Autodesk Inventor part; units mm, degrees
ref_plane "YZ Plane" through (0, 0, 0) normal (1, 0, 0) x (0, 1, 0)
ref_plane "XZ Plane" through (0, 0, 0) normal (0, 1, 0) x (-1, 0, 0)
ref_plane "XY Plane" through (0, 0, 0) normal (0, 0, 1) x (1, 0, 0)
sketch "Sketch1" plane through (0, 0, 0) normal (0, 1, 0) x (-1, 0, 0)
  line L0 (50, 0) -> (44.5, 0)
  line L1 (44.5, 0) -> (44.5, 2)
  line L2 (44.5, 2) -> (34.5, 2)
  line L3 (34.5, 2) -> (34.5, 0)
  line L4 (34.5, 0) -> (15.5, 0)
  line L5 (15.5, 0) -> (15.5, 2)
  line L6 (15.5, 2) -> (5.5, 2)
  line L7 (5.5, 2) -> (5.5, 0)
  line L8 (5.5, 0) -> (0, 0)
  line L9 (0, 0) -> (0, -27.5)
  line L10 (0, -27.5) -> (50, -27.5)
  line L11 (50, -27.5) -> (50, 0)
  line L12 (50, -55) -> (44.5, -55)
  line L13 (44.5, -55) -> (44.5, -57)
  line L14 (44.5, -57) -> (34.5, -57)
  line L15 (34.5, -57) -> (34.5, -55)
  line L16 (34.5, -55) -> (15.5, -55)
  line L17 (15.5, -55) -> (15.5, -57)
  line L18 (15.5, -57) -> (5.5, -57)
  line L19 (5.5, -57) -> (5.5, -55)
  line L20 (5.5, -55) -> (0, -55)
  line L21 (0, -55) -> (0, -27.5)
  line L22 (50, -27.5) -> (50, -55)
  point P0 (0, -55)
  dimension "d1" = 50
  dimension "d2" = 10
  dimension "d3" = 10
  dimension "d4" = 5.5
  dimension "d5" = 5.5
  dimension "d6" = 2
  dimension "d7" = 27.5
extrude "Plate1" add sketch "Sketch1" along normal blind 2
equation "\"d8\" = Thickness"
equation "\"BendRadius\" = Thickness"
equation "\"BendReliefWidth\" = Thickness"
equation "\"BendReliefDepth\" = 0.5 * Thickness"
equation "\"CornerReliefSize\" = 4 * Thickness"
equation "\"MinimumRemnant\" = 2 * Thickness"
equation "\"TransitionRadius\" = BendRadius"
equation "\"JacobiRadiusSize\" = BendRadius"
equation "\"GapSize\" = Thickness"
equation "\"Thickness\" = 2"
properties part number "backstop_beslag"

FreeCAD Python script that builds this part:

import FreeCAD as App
import Part
import Sketcher

V = App.Vector
Q = App.Units.Quantity


def add_polygon(sketch, points):
    """Adds a closed chain of lines whose ends are joined by coincident constraints."""
    first, n = sketch.GeometryCount, len(points)
    for a, b in zip(points, points[1:] + points[:1]):
        sketch.addGeometry(Part.LineSegment(App.Vector(*a, 0), App.Vector(*b, 0)), False)
    for i in range(n):
        sketch.addConstraint(Sketcher.Constraint("Coincident", first + i, 2, first + (i + 1) % n, 1))

doc = App.newDocument("Part")
body = doc.addObject("PartDesign::Body", "Body")

sketch1 = body.newObject("Sketcher::SketchObject", "Sketch")
sketch1.AttachmentSupport = (doc.getObject("XZ_Plane"), [""])
sketch1.MapMode = "FlatFace"
add_polygon(sketch1, [(-50, 0), (-44.5, 0), (-44.5, 2), (-34.5, 2), (-34.5, 0), (-15.5, 0), (-15.5, 2), (-5.5, 2), (-5.5, 0), (0, 0), (0, -55), (-5.5, -55), (-5.5, -57), (-15.5, -57), (-15.5, -55), (-34.5, -55), (-34.5, -57), (-44.5, -57), (-44.5, -55), (-50, -55)])
sketch1.addConstraint(Sketcher.Constraint("Horizontal", 0))
sketch1.addConstraint(Sketcher.Constraint("Vertical", 1))
sketch1.addConstraint(Sketcher.Constraint("Horizontal", 2))
sketch1.addConstraint(Sketcher.Constraint("Vertical", 3))
sketch1.addConstraint(Sketcher.Constraint("Horizontal", 4))
sketch1.addConstraint(Sketcher.Constraint("Vertical", 5))
sketch1.addConstraint(Sketcher.Constraint("Horizontal", 6))
sketch1.addConstraint(Sketcher.Constraint("Vertical", 7))
sketch1.addConstraint(Sketcher.Constraint("Horizontal", 8))
sketch1.addConstraint(Sketcher.Constraint("Vertical", 9))
sketch1.addConstraint(Sketcher.Constraint("Horizontal", 10))
sketch1.addConstraint(Sketcher.Constraint("Vertical", 11))
sketch1.addConstraint(Sketcher.Constraint("Horizontal", 12))
sketch1.addConstraint(Sketcher.Constraint("Vertical", 13))
sketch1.addConstraint(Sketcher.Constraint("Horizontal", 14))
sketch1.addConstraint(Sketcher.Constraint("Vertical", 15))
sketch1.addConstraint(Sketcher.Constraint("Horizontal", 16))
sketch1.addConstraint(Sketcher.Constraint("Vertical", 17))
sketch1.addConstraint(Sketcher.Constraint("Horizontal", 18))
sketch1.addConstraint(Sketcher.Constraint("Vertical", 19))
sketch1.addConstraint(Sketcher.Constraint("Coincident", 8, 2, -1, 1))
sketch1.addConstraint(Sketcher.Constraint("PointOnObject", 0, 2, -1))
sketch1.addConstraint(Sketcher.Constraint("PointOnObject", 3, 2, -1))
sketch1.addConstraint(Sketcher.Constraint("Horizontal", 2, 2, 5, 2))
sketch1.addConstraint(Sketcher.Constraint("Horizontal", 10, 2, 13, 2))
sketch1.addConstraint(Sketcher.Constraint("Horizontal", 12, 2, 15, 2))
sketch1.addConstraint(Sketcher.Constraint("Horizontal", 14, 2, 17, 2))
sketch1.addConstraint(Sketcher.Constraint("Vertical", 7, 2, 10, 2))
sketch1.addConstraint(Sketcher.Constraint("Vertical", 5, 2, 12, 2))
sketch1.addConstraint(Sketcher.Constraint("Vertical", 3, 2, 14, 2))
sketch1.addConstraint(Sketcher.Constraint("Vertical", 1, 2, 16, 2))
sketch1.addConstraint(Sketcher.Constraint("Equal", 2, 6))
sketch1.addConstraint(Sketcher.Constraint("Equal", 0, 8))
sketch1.addConstraint(Sketcher.Constraint("Equal", 7, 11))
sketch1.addConstraint(Sketcher.Constraint("DistanceX", 2, 1, 2, 2, Q("10 mm")))
sketch1.addConstraint(Sketcher.Constraint("DistanceY", 1, 1, 1, 2, Q("2 mm")))
sketch1.addConstraint(Sketcher.Constraint("DistanceX", 0, 1, 0, 2, Q("5.5 mm")))
sketch1.addConstraint(Sketcher.Constraint("DistanceX", 18, 2, -1, 1, Q("50 mm")))
sketch1.addConstraint(Sketcher.Constraint("DistanceY", 9, 2, 9, 1, Q("55 mm")))
pad1 = body.newObject("PartDesign::Pad", "Pad")
pad1.Profile = sketch1
pad1.Length = 2
pad1.Reversed = True

doc.recompute()
